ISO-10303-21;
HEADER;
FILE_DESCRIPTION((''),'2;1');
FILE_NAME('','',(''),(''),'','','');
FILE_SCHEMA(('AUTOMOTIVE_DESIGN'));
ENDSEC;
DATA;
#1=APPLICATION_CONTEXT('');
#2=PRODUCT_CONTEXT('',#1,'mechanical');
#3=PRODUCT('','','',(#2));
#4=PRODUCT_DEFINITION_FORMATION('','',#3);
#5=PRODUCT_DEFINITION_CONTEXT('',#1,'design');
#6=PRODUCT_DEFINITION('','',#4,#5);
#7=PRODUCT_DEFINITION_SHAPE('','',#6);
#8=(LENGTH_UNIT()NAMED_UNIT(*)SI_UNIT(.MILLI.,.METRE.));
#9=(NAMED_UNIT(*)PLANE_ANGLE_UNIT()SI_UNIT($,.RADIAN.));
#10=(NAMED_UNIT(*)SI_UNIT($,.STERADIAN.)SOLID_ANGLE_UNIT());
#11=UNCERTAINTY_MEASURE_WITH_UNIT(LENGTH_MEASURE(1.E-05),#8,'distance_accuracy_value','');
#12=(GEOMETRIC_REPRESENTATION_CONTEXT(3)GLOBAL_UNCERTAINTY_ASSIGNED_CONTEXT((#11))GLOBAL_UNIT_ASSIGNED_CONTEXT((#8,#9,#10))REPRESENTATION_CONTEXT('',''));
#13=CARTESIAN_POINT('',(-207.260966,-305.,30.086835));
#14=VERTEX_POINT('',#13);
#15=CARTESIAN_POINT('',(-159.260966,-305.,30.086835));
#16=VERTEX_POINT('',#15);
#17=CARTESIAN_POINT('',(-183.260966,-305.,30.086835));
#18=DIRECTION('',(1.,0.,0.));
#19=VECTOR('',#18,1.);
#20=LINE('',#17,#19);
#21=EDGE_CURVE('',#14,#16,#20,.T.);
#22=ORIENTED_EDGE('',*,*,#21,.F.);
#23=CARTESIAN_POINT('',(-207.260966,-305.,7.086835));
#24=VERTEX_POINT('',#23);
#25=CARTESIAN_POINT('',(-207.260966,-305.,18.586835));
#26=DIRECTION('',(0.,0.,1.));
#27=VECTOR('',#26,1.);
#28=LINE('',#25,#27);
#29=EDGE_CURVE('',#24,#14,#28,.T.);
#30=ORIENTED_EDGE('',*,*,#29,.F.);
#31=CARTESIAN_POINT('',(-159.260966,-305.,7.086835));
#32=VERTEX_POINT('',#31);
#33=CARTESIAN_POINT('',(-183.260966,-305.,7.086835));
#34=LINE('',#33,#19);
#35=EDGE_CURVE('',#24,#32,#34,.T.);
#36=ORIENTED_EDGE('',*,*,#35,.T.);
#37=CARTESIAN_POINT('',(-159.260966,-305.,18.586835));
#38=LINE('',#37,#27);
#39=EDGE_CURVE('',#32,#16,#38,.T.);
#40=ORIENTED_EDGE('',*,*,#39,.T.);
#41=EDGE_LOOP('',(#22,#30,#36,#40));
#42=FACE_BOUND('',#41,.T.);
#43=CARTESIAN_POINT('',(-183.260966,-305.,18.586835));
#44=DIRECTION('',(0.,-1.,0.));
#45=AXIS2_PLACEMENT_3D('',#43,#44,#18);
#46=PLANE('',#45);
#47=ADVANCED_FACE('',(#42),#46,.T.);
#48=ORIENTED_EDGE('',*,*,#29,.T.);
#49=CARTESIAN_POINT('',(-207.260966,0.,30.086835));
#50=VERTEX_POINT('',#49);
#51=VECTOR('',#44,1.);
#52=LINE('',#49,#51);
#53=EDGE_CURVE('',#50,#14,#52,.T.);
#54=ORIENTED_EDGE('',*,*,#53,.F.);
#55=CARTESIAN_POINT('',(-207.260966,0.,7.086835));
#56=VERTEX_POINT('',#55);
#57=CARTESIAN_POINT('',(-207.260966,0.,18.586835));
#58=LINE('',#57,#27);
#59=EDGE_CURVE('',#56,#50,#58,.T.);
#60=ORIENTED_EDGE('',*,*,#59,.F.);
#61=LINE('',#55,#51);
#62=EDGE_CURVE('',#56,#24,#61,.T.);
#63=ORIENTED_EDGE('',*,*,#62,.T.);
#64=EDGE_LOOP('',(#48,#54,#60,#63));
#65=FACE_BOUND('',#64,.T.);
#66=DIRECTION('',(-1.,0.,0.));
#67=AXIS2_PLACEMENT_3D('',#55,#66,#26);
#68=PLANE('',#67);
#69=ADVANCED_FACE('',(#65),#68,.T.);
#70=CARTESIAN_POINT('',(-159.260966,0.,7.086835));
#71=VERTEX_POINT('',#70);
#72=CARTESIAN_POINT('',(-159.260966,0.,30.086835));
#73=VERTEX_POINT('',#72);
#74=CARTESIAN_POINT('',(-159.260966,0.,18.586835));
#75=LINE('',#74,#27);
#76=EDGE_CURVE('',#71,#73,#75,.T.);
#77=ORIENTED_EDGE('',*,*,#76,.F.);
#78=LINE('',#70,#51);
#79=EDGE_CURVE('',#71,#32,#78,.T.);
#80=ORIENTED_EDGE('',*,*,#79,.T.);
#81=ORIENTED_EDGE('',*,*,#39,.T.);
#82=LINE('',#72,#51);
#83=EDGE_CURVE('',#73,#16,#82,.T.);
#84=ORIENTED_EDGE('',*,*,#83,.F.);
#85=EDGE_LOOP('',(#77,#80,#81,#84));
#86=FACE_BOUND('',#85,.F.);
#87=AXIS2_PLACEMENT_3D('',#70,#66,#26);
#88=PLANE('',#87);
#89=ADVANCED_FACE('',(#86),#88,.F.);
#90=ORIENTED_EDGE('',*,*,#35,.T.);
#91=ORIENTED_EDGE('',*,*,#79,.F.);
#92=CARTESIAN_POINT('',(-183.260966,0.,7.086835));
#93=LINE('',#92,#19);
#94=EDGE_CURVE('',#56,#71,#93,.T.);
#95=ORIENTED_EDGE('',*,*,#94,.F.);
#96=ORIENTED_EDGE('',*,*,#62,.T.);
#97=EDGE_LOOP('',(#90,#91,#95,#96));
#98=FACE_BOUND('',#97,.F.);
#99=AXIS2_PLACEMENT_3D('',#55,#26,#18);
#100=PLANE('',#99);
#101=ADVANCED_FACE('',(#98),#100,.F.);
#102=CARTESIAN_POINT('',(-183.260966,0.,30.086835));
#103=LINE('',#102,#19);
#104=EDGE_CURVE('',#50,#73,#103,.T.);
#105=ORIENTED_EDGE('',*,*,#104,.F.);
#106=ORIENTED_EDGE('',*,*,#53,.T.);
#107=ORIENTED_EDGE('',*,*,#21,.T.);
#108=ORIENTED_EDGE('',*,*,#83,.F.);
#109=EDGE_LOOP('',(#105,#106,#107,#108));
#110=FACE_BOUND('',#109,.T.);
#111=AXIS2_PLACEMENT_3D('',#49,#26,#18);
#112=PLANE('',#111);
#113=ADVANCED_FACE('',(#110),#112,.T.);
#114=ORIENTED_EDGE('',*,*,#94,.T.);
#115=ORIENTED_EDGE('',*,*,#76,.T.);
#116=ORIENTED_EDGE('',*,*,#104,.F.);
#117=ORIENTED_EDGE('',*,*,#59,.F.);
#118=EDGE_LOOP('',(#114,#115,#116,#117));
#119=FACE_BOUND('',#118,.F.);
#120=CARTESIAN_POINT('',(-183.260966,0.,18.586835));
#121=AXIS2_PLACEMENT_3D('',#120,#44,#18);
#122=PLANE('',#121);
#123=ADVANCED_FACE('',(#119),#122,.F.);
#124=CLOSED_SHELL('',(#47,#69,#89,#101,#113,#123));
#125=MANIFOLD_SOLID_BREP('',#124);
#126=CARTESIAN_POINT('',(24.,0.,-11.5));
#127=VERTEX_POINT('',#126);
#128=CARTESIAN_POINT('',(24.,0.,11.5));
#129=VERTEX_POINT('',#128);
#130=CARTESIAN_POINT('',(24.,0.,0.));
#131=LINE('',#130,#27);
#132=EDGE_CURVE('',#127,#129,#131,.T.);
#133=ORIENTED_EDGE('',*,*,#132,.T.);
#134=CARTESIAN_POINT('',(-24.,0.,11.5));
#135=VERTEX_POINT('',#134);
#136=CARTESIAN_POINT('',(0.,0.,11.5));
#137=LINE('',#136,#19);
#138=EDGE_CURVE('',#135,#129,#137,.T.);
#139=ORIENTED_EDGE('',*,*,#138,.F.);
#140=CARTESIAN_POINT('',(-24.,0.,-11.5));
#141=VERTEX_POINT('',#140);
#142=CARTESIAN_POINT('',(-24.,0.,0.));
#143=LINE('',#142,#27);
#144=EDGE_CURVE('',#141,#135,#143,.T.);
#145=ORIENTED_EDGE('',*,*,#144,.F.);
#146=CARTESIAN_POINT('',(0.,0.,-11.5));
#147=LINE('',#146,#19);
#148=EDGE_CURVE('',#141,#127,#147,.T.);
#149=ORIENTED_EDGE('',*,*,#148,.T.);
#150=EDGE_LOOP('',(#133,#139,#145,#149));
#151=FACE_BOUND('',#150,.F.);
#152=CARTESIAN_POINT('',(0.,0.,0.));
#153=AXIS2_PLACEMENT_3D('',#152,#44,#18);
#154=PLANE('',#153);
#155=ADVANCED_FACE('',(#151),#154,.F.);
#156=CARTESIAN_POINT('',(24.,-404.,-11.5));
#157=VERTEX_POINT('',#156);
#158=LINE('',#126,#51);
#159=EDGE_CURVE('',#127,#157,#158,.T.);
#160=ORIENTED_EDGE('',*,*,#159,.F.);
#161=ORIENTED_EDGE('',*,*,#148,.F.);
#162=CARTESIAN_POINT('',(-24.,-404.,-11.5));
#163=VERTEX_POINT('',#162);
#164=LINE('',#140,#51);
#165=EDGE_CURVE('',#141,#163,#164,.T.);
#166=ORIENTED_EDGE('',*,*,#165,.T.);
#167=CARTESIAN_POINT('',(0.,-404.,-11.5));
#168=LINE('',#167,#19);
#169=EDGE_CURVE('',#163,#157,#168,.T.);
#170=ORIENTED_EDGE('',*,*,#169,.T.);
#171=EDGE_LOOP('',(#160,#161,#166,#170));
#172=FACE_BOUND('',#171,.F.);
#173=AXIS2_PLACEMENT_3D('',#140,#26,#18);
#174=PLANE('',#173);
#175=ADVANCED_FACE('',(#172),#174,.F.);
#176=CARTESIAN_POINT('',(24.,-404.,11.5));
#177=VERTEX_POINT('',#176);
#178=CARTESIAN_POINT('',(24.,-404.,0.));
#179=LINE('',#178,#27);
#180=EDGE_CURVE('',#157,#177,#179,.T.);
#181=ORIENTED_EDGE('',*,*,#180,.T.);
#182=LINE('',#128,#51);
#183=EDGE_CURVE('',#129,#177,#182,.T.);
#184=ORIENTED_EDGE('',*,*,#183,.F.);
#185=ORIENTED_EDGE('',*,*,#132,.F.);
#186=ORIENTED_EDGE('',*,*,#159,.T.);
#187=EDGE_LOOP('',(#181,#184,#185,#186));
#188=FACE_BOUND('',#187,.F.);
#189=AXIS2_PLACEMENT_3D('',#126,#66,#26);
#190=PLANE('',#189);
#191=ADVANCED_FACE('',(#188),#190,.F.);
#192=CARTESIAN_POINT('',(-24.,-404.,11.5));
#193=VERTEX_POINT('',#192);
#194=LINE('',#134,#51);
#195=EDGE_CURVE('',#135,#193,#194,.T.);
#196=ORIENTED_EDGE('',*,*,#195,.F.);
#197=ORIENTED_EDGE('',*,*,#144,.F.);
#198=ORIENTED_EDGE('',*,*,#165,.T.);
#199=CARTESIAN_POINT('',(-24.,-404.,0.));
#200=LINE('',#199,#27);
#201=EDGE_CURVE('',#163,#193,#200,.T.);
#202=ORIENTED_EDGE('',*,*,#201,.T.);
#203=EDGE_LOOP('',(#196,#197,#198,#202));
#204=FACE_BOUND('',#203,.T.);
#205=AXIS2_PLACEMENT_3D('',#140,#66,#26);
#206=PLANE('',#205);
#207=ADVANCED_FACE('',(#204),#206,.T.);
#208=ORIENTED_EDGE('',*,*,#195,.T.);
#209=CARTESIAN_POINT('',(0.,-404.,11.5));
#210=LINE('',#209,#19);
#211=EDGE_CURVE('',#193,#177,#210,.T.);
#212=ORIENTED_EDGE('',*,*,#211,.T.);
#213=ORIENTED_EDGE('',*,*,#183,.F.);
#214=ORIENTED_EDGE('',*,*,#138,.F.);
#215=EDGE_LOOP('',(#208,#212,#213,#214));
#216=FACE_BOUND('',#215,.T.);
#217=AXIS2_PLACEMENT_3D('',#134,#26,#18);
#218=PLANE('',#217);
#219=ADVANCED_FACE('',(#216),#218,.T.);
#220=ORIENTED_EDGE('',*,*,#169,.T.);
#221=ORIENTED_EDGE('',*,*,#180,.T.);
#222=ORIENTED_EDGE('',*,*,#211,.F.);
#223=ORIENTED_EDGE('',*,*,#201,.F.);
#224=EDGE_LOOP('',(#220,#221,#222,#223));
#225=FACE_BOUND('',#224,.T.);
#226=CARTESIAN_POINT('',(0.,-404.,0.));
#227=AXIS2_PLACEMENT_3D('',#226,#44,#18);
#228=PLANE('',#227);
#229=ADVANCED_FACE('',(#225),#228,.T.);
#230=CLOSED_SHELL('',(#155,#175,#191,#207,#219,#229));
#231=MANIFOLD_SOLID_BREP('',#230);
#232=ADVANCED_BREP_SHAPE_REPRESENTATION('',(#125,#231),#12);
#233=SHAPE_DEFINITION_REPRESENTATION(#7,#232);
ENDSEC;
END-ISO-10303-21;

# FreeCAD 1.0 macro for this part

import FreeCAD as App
import Part
import Sketcher
from FreeCAD import Vector

doc = App.newDocument("Part")
body = doc.addObject("PartDesign::Body", "Body")

# Sketch on XZ plane
sketch1 = body.newObject("Sketcher::SketchObject", "Sketch")
sketch1.AttachmentSupport = (doc.getObject("XZ_Plane"), [""])
sketch1.MapMode = "FlatFace"
sketch1.addGeometry(Part.LineSegment(Vector(-24, 11.5, 0), Vector(-24, -11.5, 0)), False)
sketch1.addGeometry(Part.LineSegment(Vector(-24, -11.5, 0), Vector(24, -11.5, 0)), False)
sketch1.addGeometry(Part.LineSegment(Vector(24, -11.5, 0), Vector(24, 11.5, 0)), False)
sketch1.addGeometry(Part.LineSegment(Vector(24, 11.5, 0), Vector(-24, 11.5, 0)), False)
sketch1.addConstraint(Sketcher.Constraint("Coincident", 0, 2, 1, 1))
sketch1.addConstraint(Sketcher.Constraint("Coincident", 1, 2, 2, 1))
sketch1.addConstraint(Sketcher.Constraint("Coincident", 2, 2, 3, 1))
sketch1.addConstraint(Sketcher.Constraint("Coincident", 3, 2, 0, 1))
sketch1.addConstraint(Sketcher.Constraint("Vertical", 0))
sketch1.addConstraint(Sketcher.Constraint("Horizontal", 1))
sketch1.addConstraint(Sketcher.Constraint("Vertical", 2))
sketch1.addConstraint(Sketcher.Constraint("Horizontal", 3))
sketch1.addConstraint(Sketcher.Constraint("Symmetric", 0, 2, 2, 2, -1, 1))
sketch1.addConstraint(Sketcher.Constraint("DistanceX", 1, 1, 1, 2, 48.0))
sketch1.addConstraint(Sketcher.Constraint("DistanceY", 0, 2, 0, 1, 23.0))
pad1 = body.newObject("PartDesign::Pad", "Pad")
pad1.Profile = sketch1
pad1.Length = 404
body2 = doc.addObject("PartDesign::Body", "Body001")

# Sketch on XZ plane
sketch2 = body2.newObject("Sketcher::SketchObject", "Sketch001")
sketch2.AttachmentSupport = (doc.getObject("XZ_Plane001"), [""])
sketch2.MapMode = "FlatFace"
sketch2.addGeometry(Part.LineSegment(Vector(-207.260966, 30.086835, 0), Vector(-207.260966, 7.086835, 0)), False)
sketch2.addGeometry(Part.LineSegment(Vector(-207.260966, 7.086835, 0), Vector(-159.260966, 7.086835, 0)), False)
sketch2.addGeometry(Part.LineSegment(Vector(-159.260966, 7.086835, 0), Vector(-159.260966, 30.086835, 0)), False)
sketch2.addGeometry(Part.LineSegment(Vector(-159.260966, 30.086835, 0), Vector(-207.260966, 30.086835, 0)), False)
sketch2.addConstraint(Sketcher.Constraint("Coincident", 0, 2, 1, 1))
sketch2.addConstraint(Sketcher.Constraint("Coincident", 1, 2, 2, 1))
sketch2.addConstraint(Sketcher.Constraint("Coincident", 2, 2, 3, 1))
sketch2.addConstraint(Sketcher.Constraint("Coincident", 3, 2, 0, 1))
sketch2.addConstraint(Sketcher.Constraint("Vertical", 0))
sketch2.addConstraint(Sketcher.Constraint("Horizontal", 1))
sketch2.addConstraint(Sketcher.Constraint("Vertical", 2))
sketch2.addConstraint(Sketcher.Constraint("Horizontal", 3))
sketch2.addConstraint(Sketcher.Constraint("DistanceX", 1, 1, 1, 2, 48.0))
sketch2.addConstraint(Sketcher.Constraint("DistanceY", 0, 2, 0, 1, 23.0))
sketch2.addConstraint(Sketcher.Constraint("DistanceX", 0, 2, -1, 1, 207.260966))
sketch2.addConstraint(Sketcher.Constraint("DistanceY", -1, 1, 0, 2, 7.086835))
pad2 = body2.newObject("PartDesign::Pad", "Pad001")
pad2.Profile = sketch2
pad2.Length = 305

doc.recompute()
